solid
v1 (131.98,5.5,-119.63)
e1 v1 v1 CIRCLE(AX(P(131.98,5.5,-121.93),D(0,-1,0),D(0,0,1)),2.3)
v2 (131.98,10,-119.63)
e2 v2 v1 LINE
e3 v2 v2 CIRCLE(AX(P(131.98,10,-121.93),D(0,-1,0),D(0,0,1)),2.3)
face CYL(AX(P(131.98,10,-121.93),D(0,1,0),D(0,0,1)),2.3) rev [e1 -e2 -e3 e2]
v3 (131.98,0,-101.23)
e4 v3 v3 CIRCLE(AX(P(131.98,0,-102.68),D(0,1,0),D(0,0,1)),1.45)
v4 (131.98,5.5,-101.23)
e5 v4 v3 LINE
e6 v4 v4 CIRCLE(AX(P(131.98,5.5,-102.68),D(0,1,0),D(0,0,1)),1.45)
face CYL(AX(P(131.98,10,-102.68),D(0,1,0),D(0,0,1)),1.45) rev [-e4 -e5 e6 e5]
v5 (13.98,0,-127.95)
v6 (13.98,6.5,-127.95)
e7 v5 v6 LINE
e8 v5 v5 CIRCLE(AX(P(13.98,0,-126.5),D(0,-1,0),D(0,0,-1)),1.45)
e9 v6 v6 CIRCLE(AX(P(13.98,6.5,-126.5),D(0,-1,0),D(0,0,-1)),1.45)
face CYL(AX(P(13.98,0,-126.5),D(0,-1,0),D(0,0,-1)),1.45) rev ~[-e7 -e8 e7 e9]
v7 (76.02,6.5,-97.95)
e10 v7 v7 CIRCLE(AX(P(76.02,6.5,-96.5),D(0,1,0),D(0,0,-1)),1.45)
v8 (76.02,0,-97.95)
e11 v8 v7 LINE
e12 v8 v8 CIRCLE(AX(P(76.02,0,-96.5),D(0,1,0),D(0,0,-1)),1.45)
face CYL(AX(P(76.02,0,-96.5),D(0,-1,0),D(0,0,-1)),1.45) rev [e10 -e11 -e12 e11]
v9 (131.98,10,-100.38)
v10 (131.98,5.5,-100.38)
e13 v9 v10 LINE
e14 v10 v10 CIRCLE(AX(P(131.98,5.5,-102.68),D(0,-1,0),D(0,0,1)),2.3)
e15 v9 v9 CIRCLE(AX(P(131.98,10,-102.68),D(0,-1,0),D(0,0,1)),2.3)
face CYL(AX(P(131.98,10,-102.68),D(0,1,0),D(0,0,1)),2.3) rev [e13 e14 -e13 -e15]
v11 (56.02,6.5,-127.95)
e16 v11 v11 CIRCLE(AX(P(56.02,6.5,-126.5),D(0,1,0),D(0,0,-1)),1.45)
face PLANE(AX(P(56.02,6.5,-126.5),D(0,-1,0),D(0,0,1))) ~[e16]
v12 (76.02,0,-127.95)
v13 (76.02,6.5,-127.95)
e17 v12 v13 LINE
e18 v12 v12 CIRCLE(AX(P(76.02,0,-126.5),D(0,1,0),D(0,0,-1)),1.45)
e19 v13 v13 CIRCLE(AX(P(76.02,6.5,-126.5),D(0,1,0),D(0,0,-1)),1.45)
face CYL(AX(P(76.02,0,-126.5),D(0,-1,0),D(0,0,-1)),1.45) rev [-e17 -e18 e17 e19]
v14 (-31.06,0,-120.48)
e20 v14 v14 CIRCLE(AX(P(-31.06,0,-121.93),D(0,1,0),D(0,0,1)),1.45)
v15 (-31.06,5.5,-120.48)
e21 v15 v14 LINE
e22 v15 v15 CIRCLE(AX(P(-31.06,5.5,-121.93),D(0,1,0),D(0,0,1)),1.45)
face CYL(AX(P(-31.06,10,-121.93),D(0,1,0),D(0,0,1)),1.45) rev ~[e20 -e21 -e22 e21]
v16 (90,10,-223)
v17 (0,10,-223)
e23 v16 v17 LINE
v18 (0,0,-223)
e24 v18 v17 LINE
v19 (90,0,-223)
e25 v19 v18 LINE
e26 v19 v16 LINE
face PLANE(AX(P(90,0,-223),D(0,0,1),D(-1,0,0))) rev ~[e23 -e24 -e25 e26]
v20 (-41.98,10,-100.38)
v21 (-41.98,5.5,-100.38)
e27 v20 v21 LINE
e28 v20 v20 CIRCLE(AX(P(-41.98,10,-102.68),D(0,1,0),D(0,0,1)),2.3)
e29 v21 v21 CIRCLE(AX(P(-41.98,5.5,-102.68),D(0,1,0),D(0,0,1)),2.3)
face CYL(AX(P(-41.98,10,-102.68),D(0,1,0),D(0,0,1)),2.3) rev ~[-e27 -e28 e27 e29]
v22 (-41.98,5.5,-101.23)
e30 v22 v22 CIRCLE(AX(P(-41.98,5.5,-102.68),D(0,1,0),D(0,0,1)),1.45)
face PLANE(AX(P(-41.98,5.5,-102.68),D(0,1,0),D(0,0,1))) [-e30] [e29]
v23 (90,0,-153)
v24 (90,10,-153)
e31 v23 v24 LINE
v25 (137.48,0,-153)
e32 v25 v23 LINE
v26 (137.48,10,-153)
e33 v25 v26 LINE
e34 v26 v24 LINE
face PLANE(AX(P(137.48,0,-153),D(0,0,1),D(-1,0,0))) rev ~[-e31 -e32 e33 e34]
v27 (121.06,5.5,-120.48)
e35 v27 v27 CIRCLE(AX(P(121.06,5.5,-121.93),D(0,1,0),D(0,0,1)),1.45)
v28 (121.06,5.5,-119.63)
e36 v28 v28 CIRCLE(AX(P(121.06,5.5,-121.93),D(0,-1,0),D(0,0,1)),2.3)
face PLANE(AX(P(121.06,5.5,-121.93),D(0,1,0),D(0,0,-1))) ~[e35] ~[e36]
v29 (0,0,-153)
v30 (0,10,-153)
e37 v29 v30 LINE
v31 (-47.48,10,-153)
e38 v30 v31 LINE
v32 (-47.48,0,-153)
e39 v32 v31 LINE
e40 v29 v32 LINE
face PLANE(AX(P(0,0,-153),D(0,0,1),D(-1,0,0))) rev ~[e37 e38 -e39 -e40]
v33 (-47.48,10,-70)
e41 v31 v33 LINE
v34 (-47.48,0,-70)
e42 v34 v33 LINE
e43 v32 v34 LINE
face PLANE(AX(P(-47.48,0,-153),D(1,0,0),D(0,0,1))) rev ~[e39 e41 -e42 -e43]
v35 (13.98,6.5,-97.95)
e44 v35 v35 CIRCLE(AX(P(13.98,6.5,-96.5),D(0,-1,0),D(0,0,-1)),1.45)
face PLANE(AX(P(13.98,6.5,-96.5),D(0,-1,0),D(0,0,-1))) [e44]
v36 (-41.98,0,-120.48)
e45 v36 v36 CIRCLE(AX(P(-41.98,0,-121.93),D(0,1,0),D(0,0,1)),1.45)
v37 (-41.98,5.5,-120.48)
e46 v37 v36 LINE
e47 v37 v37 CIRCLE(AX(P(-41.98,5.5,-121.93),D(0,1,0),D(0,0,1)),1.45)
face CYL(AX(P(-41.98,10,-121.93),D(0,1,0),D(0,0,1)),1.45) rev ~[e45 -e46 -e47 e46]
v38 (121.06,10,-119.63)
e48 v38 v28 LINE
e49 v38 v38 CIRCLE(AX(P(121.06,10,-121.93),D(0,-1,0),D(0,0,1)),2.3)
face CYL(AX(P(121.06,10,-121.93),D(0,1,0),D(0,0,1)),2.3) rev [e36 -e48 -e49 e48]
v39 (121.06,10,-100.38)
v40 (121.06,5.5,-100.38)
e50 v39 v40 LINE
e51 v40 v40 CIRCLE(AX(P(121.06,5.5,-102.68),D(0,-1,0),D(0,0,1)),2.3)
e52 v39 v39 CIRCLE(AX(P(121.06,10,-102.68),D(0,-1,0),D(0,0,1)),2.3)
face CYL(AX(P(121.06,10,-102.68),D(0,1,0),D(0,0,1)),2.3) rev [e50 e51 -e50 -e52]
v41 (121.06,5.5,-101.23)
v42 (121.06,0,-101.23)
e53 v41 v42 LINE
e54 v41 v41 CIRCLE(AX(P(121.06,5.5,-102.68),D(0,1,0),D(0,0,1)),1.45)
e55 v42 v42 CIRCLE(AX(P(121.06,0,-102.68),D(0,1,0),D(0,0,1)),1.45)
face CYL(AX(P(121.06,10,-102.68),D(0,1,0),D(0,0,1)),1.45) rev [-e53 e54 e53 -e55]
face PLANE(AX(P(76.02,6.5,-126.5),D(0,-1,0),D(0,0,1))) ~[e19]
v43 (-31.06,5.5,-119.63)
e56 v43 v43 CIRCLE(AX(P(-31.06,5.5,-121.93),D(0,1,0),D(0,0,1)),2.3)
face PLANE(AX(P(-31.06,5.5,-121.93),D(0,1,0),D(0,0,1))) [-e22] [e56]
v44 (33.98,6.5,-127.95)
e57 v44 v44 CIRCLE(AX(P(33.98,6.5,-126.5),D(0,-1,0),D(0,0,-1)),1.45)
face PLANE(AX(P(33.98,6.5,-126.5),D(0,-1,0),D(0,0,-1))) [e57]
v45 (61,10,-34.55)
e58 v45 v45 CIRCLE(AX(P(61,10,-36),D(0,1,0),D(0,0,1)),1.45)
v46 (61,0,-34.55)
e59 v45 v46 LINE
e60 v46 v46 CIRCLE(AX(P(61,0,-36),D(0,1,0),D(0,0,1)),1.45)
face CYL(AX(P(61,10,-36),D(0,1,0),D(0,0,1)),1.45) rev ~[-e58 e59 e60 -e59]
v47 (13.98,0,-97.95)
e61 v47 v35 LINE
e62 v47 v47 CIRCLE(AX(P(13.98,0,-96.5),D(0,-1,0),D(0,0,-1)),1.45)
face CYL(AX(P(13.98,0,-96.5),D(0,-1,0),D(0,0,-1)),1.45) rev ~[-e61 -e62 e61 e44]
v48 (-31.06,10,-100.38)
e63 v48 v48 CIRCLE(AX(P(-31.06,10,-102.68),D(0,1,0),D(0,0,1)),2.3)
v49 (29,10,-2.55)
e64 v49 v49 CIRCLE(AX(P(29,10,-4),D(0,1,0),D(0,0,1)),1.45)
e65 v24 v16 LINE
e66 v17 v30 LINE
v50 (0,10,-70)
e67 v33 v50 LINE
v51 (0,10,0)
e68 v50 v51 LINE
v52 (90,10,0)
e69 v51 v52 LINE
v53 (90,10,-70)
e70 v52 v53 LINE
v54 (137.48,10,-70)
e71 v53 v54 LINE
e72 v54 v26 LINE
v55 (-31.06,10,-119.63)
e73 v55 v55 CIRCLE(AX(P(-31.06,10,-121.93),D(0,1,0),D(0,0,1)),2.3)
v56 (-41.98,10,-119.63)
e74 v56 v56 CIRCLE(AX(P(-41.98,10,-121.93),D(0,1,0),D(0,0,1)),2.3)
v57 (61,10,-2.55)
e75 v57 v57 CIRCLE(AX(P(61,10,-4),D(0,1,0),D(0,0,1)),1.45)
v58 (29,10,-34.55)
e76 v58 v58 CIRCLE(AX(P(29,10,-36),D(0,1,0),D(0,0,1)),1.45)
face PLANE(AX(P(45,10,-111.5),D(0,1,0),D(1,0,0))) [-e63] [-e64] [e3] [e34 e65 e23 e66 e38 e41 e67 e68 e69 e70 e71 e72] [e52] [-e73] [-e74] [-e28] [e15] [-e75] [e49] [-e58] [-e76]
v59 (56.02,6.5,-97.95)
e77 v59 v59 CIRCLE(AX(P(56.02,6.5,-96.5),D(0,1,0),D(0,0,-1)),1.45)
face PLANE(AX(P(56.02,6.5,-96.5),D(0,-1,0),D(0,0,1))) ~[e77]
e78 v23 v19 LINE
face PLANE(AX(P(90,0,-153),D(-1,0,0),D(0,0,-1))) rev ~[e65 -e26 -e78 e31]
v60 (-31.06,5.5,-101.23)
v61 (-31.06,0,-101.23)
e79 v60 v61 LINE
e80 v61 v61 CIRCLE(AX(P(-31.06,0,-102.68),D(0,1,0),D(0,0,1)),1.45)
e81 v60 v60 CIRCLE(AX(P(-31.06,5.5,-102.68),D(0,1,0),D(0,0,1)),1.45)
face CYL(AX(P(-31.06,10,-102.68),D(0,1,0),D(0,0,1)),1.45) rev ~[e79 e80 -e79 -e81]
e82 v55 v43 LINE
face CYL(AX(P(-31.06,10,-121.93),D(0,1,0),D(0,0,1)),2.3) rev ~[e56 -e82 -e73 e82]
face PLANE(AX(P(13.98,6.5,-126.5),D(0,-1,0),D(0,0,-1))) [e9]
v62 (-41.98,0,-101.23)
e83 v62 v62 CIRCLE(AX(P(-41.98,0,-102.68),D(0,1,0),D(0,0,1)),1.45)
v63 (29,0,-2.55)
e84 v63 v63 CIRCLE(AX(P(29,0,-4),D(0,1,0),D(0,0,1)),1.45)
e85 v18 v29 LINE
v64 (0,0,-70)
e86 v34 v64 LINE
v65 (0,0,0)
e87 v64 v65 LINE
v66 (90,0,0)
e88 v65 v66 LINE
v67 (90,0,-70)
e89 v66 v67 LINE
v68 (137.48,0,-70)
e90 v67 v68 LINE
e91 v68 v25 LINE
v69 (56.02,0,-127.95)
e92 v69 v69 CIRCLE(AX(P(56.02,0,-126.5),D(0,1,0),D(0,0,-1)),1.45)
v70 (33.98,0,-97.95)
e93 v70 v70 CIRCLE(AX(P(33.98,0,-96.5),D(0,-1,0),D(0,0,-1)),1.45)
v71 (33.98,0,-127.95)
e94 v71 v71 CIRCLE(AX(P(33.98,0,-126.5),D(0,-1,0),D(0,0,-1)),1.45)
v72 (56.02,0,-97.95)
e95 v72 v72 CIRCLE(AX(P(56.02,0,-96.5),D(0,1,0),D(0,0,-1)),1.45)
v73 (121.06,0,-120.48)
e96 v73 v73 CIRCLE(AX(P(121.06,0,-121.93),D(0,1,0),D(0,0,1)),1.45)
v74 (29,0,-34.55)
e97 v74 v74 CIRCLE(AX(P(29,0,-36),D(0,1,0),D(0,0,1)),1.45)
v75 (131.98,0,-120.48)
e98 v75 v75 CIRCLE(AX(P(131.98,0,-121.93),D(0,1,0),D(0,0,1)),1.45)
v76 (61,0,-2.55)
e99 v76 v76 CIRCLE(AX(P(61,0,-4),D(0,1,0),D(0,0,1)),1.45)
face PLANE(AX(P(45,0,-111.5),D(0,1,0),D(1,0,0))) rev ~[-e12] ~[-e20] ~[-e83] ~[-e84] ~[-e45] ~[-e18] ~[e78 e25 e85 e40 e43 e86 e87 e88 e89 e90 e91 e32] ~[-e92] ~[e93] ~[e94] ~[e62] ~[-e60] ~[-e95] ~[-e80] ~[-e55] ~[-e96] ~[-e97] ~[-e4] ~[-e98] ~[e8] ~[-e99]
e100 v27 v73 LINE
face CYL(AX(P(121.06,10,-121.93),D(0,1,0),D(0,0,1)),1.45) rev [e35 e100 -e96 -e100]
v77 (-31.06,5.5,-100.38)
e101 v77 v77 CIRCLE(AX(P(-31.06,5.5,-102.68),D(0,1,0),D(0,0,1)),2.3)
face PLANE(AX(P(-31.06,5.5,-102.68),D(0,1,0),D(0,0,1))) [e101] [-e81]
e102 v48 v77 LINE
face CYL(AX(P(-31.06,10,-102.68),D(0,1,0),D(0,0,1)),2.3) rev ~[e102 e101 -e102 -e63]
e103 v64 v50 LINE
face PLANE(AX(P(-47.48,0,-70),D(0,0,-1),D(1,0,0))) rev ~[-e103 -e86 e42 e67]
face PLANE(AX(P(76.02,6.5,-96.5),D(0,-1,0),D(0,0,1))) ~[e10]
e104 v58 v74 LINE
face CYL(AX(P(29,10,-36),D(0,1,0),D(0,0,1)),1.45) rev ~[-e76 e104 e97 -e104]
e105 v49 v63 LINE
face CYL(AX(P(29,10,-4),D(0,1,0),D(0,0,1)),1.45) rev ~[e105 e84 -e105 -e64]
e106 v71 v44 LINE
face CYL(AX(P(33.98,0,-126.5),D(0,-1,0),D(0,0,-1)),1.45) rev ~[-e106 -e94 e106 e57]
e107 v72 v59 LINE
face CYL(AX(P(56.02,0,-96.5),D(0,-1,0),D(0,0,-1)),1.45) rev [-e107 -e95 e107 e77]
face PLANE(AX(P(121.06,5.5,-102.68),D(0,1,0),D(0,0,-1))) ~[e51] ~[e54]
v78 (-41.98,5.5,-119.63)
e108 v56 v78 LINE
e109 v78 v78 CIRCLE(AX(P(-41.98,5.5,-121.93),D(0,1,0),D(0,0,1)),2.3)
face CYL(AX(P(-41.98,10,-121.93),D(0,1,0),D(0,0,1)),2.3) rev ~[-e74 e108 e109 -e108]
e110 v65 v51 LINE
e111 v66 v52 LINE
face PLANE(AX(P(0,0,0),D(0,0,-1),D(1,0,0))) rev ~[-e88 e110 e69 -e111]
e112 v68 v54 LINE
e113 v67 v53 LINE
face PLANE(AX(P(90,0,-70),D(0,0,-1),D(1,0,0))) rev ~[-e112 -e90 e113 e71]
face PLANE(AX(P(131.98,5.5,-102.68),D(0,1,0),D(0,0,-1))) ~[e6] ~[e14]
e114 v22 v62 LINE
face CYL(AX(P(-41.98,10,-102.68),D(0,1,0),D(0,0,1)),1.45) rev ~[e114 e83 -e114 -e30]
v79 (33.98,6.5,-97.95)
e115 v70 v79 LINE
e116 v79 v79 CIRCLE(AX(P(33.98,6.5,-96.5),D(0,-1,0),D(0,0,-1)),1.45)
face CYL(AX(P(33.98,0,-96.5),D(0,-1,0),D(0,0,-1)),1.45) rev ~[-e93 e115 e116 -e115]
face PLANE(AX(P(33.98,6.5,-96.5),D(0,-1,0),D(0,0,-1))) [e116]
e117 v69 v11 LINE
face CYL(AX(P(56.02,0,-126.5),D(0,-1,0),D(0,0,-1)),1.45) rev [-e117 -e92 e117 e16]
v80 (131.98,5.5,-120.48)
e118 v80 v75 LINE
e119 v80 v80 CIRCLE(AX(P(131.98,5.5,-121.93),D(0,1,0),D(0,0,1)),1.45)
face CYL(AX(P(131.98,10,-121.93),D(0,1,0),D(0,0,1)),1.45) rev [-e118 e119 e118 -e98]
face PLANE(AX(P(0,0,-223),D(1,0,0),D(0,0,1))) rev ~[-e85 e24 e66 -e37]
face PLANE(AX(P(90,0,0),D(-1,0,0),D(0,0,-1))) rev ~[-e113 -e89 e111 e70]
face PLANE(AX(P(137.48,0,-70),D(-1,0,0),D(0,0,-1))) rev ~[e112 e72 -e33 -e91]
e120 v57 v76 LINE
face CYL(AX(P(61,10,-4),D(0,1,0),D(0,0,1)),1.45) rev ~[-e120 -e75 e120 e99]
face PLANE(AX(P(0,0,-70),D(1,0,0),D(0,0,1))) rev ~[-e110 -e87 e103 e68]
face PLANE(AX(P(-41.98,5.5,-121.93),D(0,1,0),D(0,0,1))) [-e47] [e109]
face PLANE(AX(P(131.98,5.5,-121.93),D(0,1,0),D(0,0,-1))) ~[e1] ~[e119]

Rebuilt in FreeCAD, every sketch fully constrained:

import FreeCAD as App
import Part
import Sketcher
from FreeCAD import Vector


def add_polygon(sketch, points):
    """Adds a closed chain of lines whose ends are joined by coincident constraints."""
    first, n = sketch.GeometryCount, len(points)
    for a, b in zip(points, points[1:] + points[:1]):
        sketch.addGeometry(Part.LineSegment(App.Vector(*a, 0), App.Vector(*b, 0)), False)
    for i in range(n):
        sketch.addConstraint(Sketcher.Constraint("Coincident", first + i, 2, first + (i + 1) % n, 1))

doc = App.newDocument("Part")
params = doc.addObject("Spreadsheet::Sheet", "Params")
for row, (alias, value) in enumerate([
    ("sketch1_width", "90 mm"),
    ("sketch1_height", "70 mm"),
    ("sketch1_height2", "83 mm"),
    ("sketch1_width2", "47.48 mm"),
    ("pad1_length", "10 mm"),
    ("sketch2_diameter", "2.9 mm"),
    ("sketch3_diameter", "4.6 mm"),
    ("pocket2_length", "4.5 mm"),
    ("sketch4_diameter", "2.9 mm"),
    ("pocket3_length", "6.5 mm"),
    ("sketch5_diameter", "2.9 mm"),
    ("pocket4_length", "10 mm"),
], start=1):
    params.set(f"A{row}", alias)
    params.set(f"B{row}", "=" + value)
    params.setAlias(f"B{row}", alias)

body = doc.addObject("PartDesign::Body", "Body")

# Sketch on XZ plane
sketch1 = body.newObject("Sketcher::SketchObject", "Sketch")
sketch1.AttachmentSupport = (doc.getObject("XZ_Plane"), [""])
sketch1.MapMode = "FlatFace"
add_polygon(sketch1, [(0, -223), (0, -153), (-47, -153), (-47, -70), (0, -70), (0, 0), (90, 0), (90, -70), (137, -70), (137, -153), (90, -153), (90, -223)])  # lines 0-11
sketch1.addConstraint(Sketcher.Constraint("Vertical", 0))
sketch1.addConstraint(Sketcher.Constraint("Horizontal", 1))
sketch1.addConstraint(Sketcher.Constraint("Vertical", 2))
sketch1.addConstraint(Sketcher.Constraint("Horizontal", 3))
sketch1.addConstraint(Sketcher.Constraint("Vertical", 4))
sketch1.addConstraint(Sketcher.Constraint("Horizontal", 5))
sketch1.addConstraint(Sketcher.Constraint("Vertical", 6))
sketch1.addConstraint(Sketcher.Constraint("Horizontal", 7))
sketch1.addConstraint(Sketcher.Constraint("Vertical", 8))
sketch1.addConstraint(Sketcher.Constraint("Horizontal", 9))
sketch1.addConstraint(Sketcher.Constraint("Vertical", 10))
sketch1.addConstraint(Sketcher.Constraint("Horizontal", 11))
sketch1.addConstraint(Sketcher.Constraint("Coincident", 4, 2, -1, 1))
sketch1.addConstraint(Sketcher.Constraint("PointOnObject", 0, 2, -2))
sketch1.addConstraint(Sketcher.Constraint("Horizontal", 3, 2, 6, 2))
sketch1.addConstraint(Sketcher.Constraint("Horizontal", 1, 2, 8, 2))
sketch1.addConstraint(Sketcher.Constraint("Vertical", 6, 2, 9, 2))
sketch1.addConstraint(Sketcher.Constraint("Equal", 3, 7))
sketch1.addConstraint(Sketcher.Constraint("Equal", 0, 4))
sketch1.addConstraint(Sketcher.Constraint("DistanceX", 5, 1, 5, 2, 90.0))
sketch1.addConstraint(Sketcher.Constraint("DistanceY", 0, 1, 0, 2, 70.0))
sketch1.addConstraint(Sketcher.Constraint("DistanceY", 2, 1, 2, 2, 83.0))
sketch1.addConstraint(Sketcher.Constraint("DistanceX", 1, 2, 1, 1, 47.48))
sketch1.setExpression("Constraints[31]", "Params.sketch1_width")
sketch1.setExpression("Constraints[32]", "Params.sketch1_height")
sketch1.setExpression("Constraints[33]", "Params.sketch1_height2")
sketch1.setExpression("Constraints[34]", "Params.sketch1_width2")
pad1 = body.newObject("PartDesign::Pad", "Pad")
pad1.Profile = sketch1
pad1.setExpression("Length", "Params.pad1_length")
pad1.Reversed = True

# Sketch on XZ plane
sketch2 = body.newObject("Sketcher::SketchObject", "Sketch001")
sketch2.AttachmentSupport = (doc.getObject("XZ_Plane"), [""])
sketch2.MapMode = "FlatFace"
sketch2.AttachmentOffset = App.Placement(Vector(0, 0, -10), App.Rotation())
sketch2.addGeometry(Part.Circle(Vector(-42, -121.9, 0), Vector(0, 0, 1), 1.4), False)
sketch2.addGeometry(Part.Circle(Vector(-42, -102.7, 0), Vector(0, 0, 1), 1.4), False)
sketch2.addGeometry(Part.Circle(Vector(-31.1, -102.7, 0), Vector(0, 0, 1), 1.4), False)
sketch2.addGeometry(Part.Circle(Vector(-31.1, -121.9, 0), Vector(0, 0, 1), 1.4), False)
sketch2.addConstraint(Sketcher.Constraint("Equal", 0, 1))
sketch2.addConstraint(Sketcher.Constraint("Equal", 1, 2))
sketch2.addConstraint(Sketcher.Constraint("Equal", 2, 3))
sketch2.addConstraint(Sketcher.Constraint("Horizontal", 1, 3, 2, 3))
sketch2.addConstraint(Sketcher.Constraint("Horizontal", 0, 3, 3, 3))
sketch2.addConstraint(Sketcher.Constraint("Vertical", 0, 3, 1, 3))
sketch2.addConstraint(Sketcher.Constraint("Vertical", 2, 3, 3, 3))
sketch2.addConstraint(Sketcher.Constraint("Diameter", 0, 2.9))
sketch2.addConstraint(Sketcher.Constraint("DistanceX", 0, 3, -1, 1, 41.98))
sketch2.addConstraint(Sketcher.Constraint("DistanceY", 0, 3, -1, 1, 121.93))
sketch2.addConstraint(Sketcher.Constraint("DistanceY", 1, 3, -1, 1, 102.68))
sketch2.addConstraint(Sketcher.Constraint("DistanceX", 2, 3, -1, 1, 31.06))
sketch2.setExpression("Constraints[7]", "Params.sketch2_diameter")
pocket1 = body.newObject("PartDesign::Pocket", "Pocket")
pocket1.Profile = sketch2
pocket1.Type = "ThroughAll"
pocket1.Reversed = True
doc.recompute()

datumplane = body.newObject("PartDesign::Plane", "DatumPlane")
datumplane.AttachmentSupport = (doc.getObject("YZ_Plane"), [""])
datumplane.MapMode = "FlatFace"
datumplane.AttachmentOffset = App.Placement(Vector(0, 0, 45), App.Rotation())
mirrored = body.newObject("PartDesign::Mirrored", "Mirrored")
mirrored.Originals = [pocket1]
mirrored.MirrorPlane = (datumplane, [""])
body.Tip = mirrored

# Sketch on XZ plane
sketch3 = body.newObject("Sketcher::SketchObject", "Sketch002")
sketch3.AttachmentSupport = (doc.getObject("XZ_Plane"), [""])
sketch3.MapMode = "FlatFace"
sketch3.AttachmentOffset = App.Placement(Vector(0, 0, -10), App.Rotation())
sketch3.addGeometry(Part.Circle(Vector(-42, -121.9, 0), Vector(0, 0, 1), 2.3), False)
sketch3.addGeometry(Part.Circle(Vector(-31.1, -121.9, 0), Vector(0, 0, 1), 2.3), False)
sketch3.addGeometry(Part.Circle(Vector(-42, -102.7, 0), Vector(0, 0, 1), 2.3), False)
sketch3.addGeometry(Part.Circle(Vector(-31.1, -102.7, 0), Vector(0, 0, 1), 2.3), False)
sketch3.addConstraint(Sketcher.Constraint("Equal", 0, 1))
sketch3.addConstraint(Sketcher.Constraint("Equal", 1, 2))
sketch3.addConstraint(Sketcher.Constraint("Equal", 2, 3))
sketch3.addConstraint(Sketcher.Constraint("Horizontal", 0, 3, 1, 3))
sketch3.addConstraint(Sketcher.Constraint("Horizontal", 2, 3, 3, 3))
sketch3.addConstraint(Sketcher.Constraint("Vertical", 0, 3, 2, 3))
sketch3.addConstraint(Sketcher.Constraint("Vertical", 1, 3, 3, 3))
sketch3.addConstraint(Sketcher.Constraint("Diameter", 0, 4.6))
sketch3.addConstraint(Sketcher.Constraint("DistanceX", 0, 3, -1, 1, 41.98))
sketch3.addConstraint(Sketcher.Constraint("DistanceY", 0, 3, -1, 1, 121.93))
sketch3.addConstraint(Sketcher.Constraint("DistanceX", 1, 3, -1, 1, 31.06))
sketch3.addConstraint(Sketcher.Constraint("DistanceY", 2, 3, -1, 1, 102.68))
sketch3.setExpression("Constraints[7]", "Params.sketch3_diameter")
pocket2 = body.newObject("PartDesign::Pocket", "Pocket001")
pocket2.Profile = sketch3
pocket2.setExpression("Length", "Params.pocket2_length")
pocket2.Reversed = True
doc.recompute()

datumplane2 = body.newObject("PartDesign::Plane", "DatumPlane001")
datumplane2.AttachmentSupport = (doc.getObject("YZ_Plane"), [""])
datumplane2.MapMode = "FlatFace"
datumplane2.AttachmentOffset = App.Placement(Vector(0, 0, 45), App.Rotation())
mirrored2 = body.newObject("PartDesign::Mirrored", "Mirrored001")
mirrored2.Originals = [pocket2]
mirrored2.MirrorPlane = (datumplane2, [""])
body.Tip = mirrored2

# Sketch on XZ plane
sketch4 = body.newObject("Sketcher::SketchObject", "Sketch003")
sketch4.AttachmentSupport = (doc.getObject("XZ_Plane"), [""])
sketch4.MapMode = "FlatFace"
sketch4.addGeometry(Part.Circle(Vector(34, -96.5, 0), Vector(0, 0, 1), 1.4), False)
sketch4.addGeometry(Part.Circle(Vector(14, -96.5, 0), Vector(0, 0, 1), 1.4), False)
sketch4.addGeometry(Part.Circle(Vector(34, -126.5, 0), Vector(0, 0, 1), 1.4), False)
sketch4.addGeometry(Part.Circle(Vector(14, -126.5, 0), Vector(0, 0, 1), 1.4), False)
sketch4.addConstraint(Sketcher.Constraint("Equal", 0, 1))
sketch4.addConstraint(Sketcher.Constraint("Equal", 1, 2))
sketch4.addConstraint(Sketcher.Constraint("Equal", 2, 3))
sketch4.addConstraint(Sketcher.Constraint("Horizontal", 0, 3, 1, 3))
sketch4.addConstraint(Sketcher.Constraint("Horizontal", 2, 3, 3, 3))
sketch4.addConstraint(Sketcher.Constraint("Vertical", 0, 3, 2, 3))
sketch4.addConstraint(Sketcher.Constraint("Vertical", 1, 3, 3, 3))
sketch4.addConstraint(Sketcher.Constraint("Diameter", 0, 2.9))
sketch4.addConstraint(Sketcher.Constraint("DistanceX", 1, 3, 0, 3, 20.0))
sketch4.addConstraint(Sketcher.Constraint("DistanceY", 2, 3, 0, 3, 30.0))
sketch4.addConstraint(Sketcher.Constraint("DistanceY", 0, 3, -1, 1, 96.5))
sketch4.addConstraint(Sketcher.Constraint("DistanceX", -1, 1, 0, 3, 33.98))
sketch4.setExpression("Constraints[7]", "Params.sketch4_diameter")
pocket3 = body.newObject("PartDesign::Pocket", "Pocket002")
pocket3.Profile = sketch4
pocket3.setExpression("Length", "Params.pocket3_length")
doc.recompute()

datumplane3 = body.newObject("PartDesign::Plane", "DatumPlane002")
datumplane3.AttachmentSupport = (doc.getObject("YZ_Plane"), [""])
datumplane3.MapMode = "FlatFace"
datumplane3.AttachmentOffset = App.Placement(Vector(0, 0, 45), App.Rotation())
mirrored3 = body.newObject("PartDesign::Mirrored", "Mirrored002")
mirrored3.Originals = [pocket3]
mirrored3.MirrorPlane = (datumplane3, [""])
body.Tip = mirrored3

# Sketch on XZ plane
sketch5 = body.newObject("Sketcher::SketchObject", "Sketch004")
sketch5.AttachmentSupport = (doc.getObject("XZ_Plane"), [""])
sketch5.MapMode = "FlatFace"
sketch5.AttachmentOffset = App.Placement(Vector(0, 0, -10), App.Rotation())
sketch5.addGeometry(Part.Circle(Vector(61, -36, 0), Vector(0, 0, 1), 1.4), False)
sketch5.addGeometry(Part.Circle(Vector(29, -36, 0), Vector(0, 0, 1), 1.4), False)
sketch5.addGeometry(Part.Circle(Vector(29, -4, 0), Vector(0, 0, 1), 1.4), False)
sketch5.addGeometry(Part.Circle(Vector(61, -4, 0), Vector(0, 0, 1), 1.4), False)
sketch5.addConstraint(Sketcher.Constraint("Equal", 0, 1))
sketch5.addConstraint(Sketcher.Constraint("Equal", 1, 2))
sketch5.addConstraint(Sketcher.Constraint("Equal", 2, 3))
sketch5.addConstraint(Sketcher.Constraint("Horizontal", 0, 3, 1, 3))
sketch5.addConstraint(Sketcher.Constraint("Horizontal", 2, 3, 3, 3))
sketch5.addConstraint(Sketcher.Constraint("Vertical", 1, 3, 2, 3))
sketch5.addConstraint(Sketcher.Constraint("Vertical", 0, 3, 3, 3))
sketch5.addConstraint(Sketcher.Constraint("Diameter", 0, 2.9))
sketch5.addConstraint(Sketcher.Constraint("DistanceX", -1, 1, 0, 3, 61.0))
sketch5.addConstraint(Sketcher.Constraint("DistanceY", 0, 3, -1, 1, 36.0))
sketch5.addConstraint(Sketcher.Constraint("DistanceX", -1, 1, 1, 3, 29.0))
sketch5.addConstraint(Sketcher.Constraint("DistanceY", 2, 3, -1, 1, 4.0))
sketch5.setExpression("Constraints[7]", "Params.sketch5_diameter")
pocket4 = body.newObject("PartDesign::Pocket", "Pocket003")
pocket4.Profile = sketch5
pocket4.setExpression("Length", "Params.pocket4_length")
pocket4.Reversed = True

doc.recompute()
